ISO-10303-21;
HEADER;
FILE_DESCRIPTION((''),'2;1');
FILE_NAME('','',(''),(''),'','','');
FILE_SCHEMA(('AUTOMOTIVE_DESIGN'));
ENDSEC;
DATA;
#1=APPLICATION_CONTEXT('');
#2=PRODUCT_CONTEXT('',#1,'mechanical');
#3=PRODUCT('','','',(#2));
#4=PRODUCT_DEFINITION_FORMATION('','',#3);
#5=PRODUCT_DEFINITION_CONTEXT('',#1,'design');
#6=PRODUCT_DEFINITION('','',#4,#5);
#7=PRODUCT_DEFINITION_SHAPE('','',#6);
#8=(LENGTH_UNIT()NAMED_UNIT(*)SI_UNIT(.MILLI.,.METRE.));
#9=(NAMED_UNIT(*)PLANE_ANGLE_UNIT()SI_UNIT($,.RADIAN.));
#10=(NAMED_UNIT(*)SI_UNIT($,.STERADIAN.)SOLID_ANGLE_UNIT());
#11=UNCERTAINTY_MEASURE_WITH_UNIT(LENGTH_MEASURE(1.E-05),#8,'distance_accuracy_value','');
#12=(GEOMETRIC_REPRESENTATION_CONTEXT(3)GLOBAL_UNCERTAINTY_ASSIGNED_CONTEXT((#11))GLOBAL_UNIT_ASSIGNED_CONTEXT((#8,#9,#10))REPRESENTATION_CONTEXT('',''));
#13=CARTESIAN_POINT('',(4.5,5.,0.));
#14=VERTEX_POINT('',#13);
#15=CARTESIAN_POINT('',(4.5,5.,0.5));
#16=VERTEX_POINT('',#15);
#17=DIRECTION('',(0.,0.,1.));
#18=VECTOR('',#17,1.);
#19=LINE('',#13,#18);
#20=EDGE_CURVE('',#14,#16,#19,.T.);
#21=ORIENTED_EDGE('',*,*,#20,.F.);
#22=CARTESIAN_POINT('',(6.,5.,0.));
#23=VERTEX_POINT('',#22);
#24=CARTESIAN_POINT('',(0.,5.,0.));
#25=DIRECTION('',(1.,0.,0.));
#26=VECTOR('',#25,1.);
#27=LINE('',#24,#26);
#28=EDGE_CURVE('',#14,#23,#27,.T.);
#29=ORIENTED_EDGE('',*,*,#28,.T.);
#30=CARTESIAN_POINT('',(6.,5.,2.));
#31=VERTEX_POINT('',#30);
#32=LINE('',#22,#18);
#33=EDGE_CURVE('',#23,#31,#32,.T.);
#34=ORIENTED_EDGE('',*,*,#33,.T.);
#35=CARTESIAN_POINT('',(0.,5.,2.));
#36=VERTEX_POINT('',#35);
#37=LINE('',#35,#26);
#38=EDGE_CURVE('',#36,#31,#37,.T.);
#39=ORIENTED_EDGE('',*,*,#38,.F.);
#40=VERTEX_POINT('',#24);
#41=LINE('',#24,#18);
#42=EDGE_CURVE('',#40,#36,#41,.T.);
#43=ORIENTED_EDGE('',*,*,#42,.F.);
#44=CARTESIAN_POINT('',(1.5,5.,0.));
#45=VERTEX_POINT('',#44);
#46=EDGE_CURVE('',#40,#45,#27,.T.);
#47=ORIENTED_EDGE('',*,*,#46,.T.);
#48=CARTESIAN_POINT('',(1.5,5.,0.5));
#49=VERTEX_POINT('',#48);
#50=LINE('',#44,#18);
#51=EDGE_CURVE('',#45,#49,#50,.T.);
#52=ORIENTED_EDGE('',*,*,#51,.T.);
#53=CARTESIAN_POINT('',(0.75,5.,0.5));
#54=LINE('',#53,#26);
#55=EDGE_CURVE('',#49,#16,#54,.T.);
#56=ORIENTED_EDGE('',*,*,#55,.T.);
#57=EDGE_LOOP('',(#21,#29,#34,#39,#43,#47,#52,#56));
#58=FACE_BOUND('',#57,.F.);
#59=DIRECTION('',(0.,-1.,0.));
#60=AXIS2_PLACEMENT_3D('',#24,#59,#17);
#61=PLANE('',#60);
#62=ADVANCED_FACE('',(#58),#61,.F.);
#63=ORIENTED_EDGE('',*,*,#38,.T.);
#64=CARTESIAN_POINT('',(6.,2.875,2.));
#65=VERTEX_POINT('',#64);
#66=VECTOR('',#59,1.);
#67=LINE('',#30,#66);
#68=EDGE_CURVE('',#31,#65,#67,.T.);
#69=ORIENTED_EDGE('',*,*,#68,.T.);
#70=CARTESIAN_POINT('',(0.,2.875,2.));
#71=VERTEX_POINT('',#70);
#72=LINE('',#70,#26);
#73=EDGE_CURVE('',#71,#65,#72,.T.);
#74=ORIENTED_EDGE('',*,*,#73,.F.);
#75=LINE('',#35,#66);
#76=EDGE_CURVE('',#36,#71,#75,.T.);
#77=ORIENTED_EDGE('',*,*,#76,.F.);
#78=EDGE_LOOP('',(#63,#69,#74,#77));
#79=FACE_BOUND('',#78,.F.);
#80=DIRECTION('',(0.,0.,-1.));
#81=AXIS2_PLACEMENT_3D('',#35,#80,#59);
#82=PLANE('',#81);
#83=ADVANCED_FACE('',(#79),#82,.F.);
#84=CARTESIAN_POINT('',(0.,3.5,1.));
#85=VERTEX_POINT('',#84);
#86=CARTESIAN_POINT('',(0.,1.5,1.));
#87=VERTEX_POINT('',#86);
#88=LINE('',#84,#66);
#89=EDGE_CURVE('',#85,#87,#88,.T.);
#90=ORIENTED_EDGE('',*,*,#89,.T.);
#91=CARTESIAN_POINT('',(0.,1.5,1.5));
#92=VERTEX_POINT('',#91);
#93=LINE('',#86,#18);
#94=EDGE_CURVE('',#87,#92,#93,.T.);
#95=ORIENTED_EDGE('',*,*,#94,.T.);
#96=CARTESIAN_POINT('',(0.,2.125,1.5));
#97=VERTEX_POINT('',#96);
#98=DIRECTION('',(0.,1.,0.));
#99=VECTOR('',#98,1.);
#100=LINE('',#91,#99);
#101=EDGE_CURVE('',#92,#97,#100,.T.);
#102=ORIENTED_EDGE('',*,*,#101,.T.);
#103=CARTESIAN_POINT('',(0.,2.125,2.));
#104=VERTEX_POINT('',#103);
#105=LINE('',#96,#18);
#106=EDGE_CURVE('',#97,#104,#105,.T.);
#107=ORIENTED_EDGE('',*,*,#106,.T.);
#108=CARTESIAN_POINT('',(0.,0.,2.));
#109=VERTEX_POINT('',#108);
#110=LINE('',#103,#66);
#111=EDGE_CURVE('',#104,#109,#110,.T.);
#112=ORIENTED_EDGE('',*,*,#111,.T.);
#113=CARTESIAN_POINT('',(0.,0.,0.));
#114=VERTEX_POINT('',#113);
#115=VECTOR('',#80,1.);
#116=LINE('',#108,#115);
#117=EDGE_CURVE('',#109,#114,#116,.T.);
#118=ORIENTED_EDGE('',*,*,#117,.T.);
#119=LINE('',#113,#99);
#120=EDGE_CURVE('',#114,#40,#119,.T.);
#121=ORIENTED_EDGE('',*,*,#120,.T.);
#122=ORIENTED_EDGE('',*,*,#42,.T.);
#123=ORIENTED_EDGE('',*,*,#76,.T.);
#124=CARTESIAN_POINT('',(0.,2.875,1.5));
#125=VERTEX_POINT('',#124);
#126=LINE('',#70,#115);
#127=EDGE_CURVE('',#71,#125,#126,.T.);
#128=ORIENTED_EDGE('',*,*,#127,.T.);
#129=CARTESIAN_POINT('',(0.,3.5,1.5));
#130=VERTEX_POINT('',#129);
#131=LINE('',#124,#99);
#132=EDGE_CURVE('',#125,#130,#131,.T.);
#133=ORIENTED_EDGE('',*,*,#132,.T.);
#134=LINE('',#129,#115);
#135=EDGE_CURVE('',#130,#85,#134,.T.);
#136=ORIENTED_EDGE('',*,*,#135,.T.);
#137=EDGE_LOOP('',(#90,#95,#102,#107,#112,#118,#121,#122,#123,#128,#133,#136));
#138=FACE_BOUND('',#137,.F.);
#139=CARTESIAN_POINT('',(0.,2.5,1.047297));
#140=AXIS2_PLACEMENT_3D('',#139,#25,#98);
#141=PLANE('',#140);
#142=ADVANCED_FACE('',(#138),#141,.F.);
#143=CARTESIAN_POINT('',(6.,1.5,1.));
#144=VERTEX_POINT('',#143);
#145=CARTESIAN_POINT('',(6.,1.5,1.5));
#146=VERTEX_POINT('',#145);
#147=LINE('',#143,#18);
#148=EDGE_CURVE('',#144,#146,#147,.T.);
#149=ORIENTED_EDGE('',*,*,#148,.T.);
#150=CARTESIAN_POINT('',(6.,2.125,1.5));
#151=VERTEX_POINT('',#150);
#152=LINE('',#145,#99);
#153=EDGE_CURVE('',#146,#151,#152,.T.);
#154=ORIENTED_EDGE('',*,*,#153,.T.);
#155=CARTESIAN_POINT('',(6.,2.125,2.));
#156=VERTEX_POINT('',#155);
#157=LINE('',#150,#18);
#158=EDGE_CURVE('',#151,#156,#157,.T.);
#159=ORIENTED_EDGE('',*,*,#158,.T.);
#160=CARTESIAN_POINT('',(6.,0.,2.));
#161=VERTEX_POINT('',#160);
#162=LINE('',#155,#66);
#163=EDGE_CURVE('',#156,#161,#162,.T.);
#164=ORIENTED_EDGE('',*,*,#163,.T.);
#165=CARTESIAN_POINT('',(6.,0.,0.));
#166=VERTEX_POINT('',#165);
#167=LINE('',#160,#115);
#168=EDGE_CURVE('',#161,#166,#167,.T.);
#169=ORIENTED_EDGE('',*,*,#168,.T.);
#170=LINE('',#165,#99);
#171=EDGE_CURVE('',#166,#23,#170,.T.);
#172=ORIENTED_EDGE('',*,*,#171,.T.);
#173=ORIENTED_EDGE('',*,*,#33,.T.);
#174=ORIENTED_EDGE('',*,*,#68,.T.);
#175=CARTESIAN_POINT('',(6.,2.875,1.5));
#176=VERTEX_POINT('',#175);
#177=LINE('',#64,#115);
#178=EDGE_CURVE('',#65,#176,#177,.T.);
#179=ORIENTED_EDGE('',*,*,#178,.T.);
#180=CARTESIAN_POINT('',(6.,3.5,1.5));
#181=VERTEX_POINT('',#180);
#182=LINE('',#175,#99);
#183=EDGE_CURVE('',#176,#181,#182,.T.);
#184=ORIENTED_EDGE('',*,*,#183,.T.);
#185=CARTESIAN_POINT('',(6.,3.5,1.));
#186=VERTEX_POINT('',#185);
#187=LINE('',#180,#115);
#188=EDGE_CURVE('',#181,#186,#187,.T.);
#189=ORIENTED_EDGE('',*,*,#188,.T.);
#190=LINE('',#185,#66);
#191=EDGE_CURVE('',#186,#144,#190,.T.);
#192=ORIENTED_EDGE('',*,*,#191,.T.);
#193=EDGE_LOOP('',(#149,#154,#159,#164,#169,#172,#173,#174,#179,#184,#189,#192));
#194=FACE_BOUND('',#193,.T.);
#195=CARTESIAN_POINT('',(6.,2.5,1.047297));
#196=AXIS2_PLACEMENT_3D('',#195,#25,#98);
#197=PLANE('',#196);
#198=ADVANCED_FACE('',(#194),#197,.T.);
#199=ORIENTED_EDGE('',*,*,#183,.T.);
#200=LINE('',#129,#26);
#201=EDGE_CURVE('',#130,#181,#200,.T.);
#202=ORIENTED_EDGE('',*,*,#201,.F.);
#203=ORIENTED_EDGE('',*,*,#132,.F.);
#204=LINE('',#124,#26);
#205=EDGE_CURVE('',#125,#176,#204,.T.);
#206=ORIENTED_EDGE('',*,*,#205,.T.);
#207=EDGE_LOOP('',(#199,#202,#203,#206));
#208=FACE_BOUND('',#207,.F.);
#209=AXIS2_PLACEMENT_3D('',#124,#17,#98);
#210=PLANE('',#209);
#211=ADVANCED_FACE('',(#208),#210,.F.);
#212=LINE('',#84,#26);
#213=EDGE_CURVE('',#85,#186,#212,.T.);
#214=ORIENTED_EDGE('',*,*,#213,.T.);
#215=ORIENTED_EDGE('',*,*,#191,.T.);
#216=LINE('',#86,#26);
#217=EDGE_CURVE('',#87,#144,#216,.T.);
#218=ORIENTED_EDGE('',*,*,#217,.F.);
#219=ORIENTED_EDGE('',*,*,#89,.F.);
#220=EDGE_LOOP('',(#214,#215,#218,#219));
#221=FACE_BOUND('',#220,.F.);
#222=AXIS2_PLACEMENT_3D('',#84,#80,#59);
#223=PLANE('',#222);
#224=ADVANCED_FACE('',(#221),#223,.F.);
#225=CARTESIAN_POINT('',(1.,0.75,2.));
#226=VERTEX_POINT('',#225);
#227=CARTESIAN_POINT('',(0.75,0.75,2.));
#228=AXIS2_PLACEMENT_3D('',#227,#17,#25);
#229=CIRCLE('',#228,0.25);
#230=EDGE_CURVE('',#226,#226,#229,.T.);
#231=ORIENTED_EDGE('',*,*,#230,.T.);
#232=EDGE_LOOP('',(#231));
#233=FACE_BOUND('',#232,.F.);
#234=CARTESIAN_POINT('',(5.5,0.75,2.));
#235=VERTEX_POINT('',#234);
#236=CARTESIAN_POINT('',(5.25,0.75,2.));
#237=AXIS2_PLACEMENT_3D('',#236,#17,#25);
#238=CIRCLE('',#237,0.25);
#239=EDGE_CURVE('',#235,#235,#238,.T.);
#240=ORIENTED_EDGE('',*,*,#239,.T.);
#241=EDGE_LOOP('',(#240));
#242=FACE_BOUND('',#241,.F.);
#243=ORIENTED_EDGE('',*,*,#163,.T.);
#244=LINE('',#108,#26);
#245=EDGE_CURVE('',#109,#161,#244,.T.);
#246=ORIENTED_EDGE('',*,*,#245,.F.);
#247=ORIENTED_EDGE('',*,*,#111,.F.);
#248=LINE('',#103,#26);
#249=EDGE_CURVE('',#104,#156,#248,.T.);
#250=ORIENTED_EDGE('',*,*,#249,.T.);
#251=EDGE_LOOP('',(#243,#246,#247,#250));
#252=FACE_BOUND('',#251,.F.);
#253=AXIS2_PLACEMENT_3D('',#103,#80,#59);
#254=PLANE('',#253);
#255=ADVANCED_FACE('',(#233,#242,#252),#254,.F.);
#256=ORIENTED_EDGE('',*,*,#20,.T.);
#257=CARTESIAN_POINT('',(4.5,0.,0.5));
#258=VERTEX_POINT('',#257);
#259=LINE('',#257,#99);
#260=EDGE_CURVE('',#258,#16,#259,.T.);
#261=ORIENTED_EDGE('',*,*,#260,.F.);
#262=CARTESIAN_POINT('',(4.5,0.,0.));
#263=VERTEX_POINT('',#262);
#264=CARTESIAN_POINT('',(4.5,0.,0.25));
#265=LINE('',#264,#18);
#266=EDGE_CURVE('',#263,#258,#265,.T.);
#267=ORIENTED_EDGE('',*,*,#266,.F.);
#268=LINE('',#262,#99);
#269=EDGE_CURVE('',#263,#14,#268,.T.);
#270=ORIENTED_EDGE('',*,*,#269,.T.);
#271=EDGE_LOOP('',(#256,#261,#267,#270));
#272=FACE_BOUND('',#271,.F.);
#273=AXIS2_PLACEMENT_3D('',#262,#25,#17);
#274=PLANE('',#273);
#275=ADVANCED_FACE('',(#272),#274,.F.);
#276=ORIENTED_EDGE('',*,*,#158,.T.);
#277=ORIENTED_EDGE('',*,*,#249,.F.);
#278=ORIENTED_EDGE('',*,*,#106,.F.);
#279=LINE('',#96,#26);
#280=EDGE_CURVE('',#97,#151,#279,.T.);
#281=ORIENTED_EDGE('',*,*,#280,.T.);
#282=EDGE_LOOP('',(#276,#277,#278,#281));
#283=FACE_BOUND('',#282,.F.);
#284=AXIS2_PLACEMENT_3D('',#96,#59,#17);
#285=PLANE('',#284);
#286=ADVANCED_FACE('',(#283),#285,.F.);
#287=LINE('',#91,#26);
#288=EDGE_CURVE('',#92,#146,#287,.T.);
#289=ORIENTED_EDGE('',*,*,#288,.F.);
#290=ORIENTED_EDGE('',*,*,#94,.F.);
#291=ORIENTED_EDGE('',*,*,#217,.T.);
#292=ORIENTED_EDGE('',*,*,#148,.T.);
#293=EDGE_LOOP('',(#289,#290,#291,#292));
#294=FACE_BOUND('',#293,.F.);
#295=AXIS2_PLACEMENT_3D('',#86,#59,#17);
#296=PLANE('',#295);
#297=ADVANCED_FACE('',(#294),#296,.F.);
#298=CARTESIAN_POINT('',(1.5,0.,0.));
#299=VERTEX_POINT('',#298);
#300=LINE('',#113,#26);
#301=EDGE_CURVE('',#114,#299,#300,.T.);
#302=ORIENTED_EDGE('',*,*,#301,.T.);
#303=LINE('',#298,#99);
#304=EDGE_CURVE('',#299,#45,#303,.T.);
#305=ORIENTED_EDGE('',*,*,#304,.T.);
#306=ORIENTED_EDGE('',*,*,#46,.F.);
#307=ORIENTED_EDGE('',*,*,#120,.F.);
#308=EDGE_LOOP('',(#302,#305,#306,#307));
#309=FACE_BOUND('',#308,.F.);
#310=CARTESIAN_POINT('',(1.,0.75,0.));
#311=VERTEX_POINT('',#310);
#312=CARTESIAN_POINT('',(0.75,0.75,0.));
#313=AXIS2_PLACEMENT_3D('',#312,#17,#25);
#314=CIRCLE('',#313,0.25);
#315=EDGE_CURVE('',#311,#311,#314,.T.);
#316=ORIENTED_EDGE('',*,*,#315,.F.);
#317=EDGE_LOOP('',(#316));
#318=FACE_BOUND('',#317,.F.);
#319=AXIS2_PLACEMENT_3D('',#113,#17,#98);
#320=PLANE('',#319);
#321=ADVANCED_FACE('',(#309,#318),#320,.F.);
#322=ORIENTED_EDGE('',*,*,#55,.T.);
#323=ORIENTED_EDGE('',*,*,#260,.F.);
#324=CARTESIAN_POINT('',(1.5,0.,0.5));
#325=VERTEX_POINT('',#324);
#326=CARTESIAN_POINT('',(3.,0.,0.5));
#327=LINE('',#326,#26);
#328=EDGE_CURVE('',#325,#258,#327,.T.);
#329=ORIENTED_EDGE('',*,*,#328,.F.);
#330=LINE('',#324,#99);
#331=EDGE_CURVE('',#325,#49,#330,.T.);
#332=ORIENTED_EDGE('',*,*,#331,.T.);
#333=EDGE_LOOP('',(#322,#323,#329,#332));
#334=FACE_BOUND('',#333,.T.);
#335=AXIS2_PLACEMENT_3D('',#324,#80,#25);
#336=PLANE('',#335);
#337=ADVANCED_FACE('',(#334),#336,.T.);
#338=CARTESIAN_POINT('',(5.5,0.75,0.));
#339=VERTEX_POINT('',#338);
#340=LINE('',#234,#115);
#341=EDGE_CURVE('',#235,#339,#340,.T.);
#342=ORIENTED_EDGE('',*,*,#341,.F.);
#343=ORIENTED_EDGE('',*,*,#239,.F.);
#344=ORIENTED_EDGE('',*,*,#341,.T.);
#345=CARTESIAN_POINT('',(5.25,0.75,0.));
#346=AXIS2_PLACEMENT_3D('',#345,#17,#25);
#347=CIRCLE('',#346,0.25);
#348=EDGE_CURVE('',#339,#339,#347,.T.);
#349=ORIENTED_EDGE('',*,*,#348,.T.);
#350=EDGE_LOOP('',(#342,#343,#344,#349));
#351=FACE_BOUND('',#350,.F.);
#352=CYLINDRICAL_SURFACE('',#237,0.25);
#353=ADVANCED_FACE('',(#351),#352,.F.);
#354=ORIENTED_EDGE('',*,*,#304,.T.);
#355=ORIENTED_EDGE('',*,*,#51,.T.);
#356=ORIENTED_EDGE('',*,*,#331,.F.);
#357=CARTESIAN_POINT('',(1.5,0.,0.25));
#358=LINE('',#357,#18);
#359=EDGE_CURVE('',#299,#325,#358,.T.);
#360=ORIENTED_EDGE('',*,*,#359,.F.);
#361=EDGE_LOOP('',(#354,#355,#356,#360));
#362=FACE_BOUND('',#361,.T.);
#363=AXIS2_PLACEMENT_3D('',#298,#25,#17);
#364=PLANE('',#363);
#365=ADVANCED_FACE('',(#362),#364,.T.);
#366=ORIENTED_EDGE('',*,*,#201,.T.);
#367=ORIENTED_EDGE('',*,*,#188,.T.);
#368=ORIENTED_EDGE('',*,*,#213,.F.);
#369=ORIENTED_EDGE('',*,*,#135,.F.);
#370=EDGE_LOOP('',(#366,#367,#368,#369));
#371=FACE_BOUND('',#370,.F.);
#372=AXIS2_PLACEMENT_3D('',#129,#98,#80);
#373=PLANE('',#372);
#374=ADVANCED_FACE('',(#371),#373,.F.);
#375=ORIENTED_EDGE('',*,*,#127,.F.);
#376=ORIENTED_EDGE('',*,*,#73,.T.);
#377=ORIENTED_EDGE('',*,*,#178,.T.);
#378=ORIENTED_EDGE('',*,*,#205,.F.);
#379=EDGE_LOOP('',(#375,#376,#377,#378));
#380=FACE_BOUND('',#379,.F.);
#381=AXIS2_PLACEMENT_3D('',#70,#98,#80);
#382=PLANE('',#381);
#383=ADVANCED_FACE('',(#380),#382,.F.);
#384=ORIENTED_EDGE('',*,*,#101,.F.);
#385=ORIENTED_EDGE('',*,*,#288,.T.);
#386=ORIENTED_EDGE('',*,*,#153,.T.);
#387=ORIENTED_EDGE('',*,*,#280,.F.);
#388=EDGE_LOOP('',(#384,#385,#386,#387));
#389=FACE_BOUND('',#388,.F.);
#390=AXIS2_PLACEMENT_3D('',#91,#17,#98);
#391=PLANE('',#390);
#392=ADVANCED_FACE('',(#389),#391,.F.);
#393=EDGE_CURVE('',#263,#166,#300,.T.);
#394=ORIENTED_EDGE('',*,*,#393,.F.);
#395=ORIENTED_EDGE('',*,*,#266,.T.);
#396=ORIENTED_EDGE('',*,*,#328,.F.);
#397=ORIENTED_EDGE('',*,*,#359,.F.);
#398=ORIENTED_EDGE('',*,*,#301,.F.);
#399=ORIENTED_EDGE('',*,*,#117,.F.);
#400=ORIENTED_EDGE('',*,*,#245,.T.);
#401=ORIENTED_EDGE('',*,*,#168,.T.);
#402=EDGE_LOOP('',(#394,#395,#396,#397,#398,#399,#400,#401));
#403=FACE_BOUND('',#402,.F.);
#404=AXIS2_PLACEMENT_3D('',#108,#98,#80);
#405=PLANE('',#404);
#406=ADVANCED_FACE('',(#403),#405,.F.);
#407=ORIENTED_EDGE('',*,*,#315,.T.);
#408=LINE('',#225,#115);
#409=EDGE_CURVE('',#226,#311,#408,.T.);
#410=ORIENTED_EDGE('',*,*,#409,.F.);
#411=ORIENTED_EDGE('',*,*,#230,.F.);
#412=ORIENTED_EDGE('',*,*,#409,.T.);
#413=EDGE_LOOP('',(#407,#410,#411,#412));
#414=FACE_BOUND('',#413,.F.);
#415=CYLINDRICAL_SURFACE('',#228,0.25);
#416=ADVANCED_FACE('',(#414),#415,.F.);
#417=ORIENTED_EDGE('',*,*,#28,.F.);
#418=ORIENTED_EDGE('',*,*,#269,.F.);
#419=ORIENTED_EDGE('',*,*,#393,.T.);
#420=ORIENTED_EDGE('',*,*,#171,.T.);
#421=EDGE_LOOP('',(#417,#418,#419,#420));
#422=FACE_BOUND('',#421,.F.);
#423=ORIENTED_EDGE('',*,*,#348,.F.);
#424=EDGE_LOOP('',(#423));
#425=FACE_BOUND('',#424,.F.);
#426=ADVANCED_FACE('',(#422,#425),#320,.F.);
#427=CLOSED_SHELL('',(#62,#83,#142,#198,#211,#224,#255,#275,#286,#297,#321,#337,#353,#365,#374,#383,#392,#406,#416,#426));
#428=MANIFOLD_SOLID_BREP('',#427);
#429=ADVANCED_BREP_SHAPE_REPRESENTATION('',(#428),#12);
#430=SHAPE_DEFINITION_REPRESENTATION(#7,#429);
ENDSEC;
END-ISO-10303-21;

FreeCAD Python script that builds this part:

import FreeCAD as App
import Part
import Sketcher
Q = App.Units.Quantity

doc = App.newDocument("Part")
body = doc.addObject("PartDesign::Body", "Body")

# Sketch on YZ plane
sketch1 = body.newObject("Sketcher::SketchObject", "Sketch")
sketch1.AttachmentSupport = (doc.getObject("YZ_Plane"), [""])
sketch1.MapMode = "FlatFace"
sketch1.addGeometry([
    Part.LineSegment(App.Vector(0, 2, 0), App.Vector(0, 0, 0)),  # 0
    Part.LineSegment(App.Vector(0, 0, 0), App.Vector(5, 0, 0)),  # 1
    Part.LineSegment(App.Vector(5, 0, 0), App.Vector(5, 2, 0)),  # 2
    Part.LineSegment(App.Vector(5, 2, 0), App.Vector(2.9, 2, 0)),  # 3
    Part.LineSegment(App.Vector(2.9, 2, 0), App.Vector(2.9, 1.5, 0)),  # 4
    Part.LineSegment(App.Vector(2.9, 1.5, 0), App.Vector(3.5, 1.5, 0)),  # 5
    Part.LineSegment(App.Vector(3.5, 1.5, 0), App.Vector(3.5, 1, 0)),  # 6
    Part.LineSegment(App.Vector(3.5, 1, 0), App.Vector(1.5, 1, 0)),  # 7
    Part.LineSegment(App.Vector(1.5, 1, 0), App.Vector(1.5, 1.5, 0)),  # 8
    Part.LineSegment(App.Vector(1.5, 1.5, 0), App.Vector(2.1, 1.5, 0)),  # 9
    Part.LineSegment(App.Vector(2.1, 1.5, 0), App.Vector(2.1, 2, 0)),  # 10
    Part.LineSegment(App.Vector(2.1, 2, 0), App.Vector(0, 2, 0)),  # 11
], False)
sketch1.addConstraint([
    Sketcher.Constraint("Coincident", 0, 2, 1, 1),
    Sketcher.Constraint("Coincident", 1, 2, 2, 1),
    Sketcher.Constraint("Coincident", 2, 2, 3, 1),
    Sketcher.Constraint("Coincident", 3, 2, 4, 1),
    Sketcher.Constraint("Coincident", 4, 2, 5, 1),
    Sketcher.Constraint("Coincident", 5, 2, 6, 1),
    Sketcher.Constraint("Coincident", 6, 2, 7, 1),
    Sketcher.Constraint("Coincident", 7, 2, 8, 1),
    Sketcher.Constraint("Coincident", 8, 2, 9, 1),
    Sketcher.Constraint("Coincident", 9, 2, 10, 1),
    Sketcher.Constraint("Coincident", 10, 2, 11, 1),
    Sketcher.Constraint("Coincident", 11, 2, 0, 1),
    Sketcher.Constraint("Vertical", 0),
    Sketcher.Constraint("Horizontal", 1),
    Sketcher.Constraint("Vertical", 2),
    Sketcher.Constraint("Horizontal", 3),
    Sketcher.Constraint("Vertical", 4),
    Sketcher.Constraint("Horizontal", 5),
    Sketcher.Constraint("Vertical", 6),
    Sketcher.Constraint("Horizontal", 7),
    Sketcher.Constraint("Vertical", 8),
    Sketcher.Constraint("Horizontal", 9),
    Sketcher.Constraint("Vertical", 10),
    Sketcher.Constraint("Horizontal", 11),
    Sketcher.Constraint("Coincident", 0, 2, -1, 1),
    Sketcher.Constraint("Horizontal", 5, 2, 8, 2),
    Sketcher.Constraint("Horizontal", 3, 2, 10, 2),
    Sketcher.Constraint("Equal", 5, 9),
    Sketcher.Constraint("Equal", 3, 11),
    Sketcher.Constraint("Equal", 7, 0),
    Sketcher.Constraint("Equal", 4, 6),
    Sketcher.Constraint("DistanceX", 1, 1, 1, 2, Q("5 mm")),
    Sketcher.Constraint("DistanceX", 7, 2, 7, 1, Q("2 mm")),
    Sketcher.Constraint("DistanceY", 4, 2, 4, 1, Q("0.5 mm")),
    Sketcher.Constraint("DistanceX", 3, 2, 3, 1, Q("2.125 mm")),
])
pad1 = body.newObject("PartDesign::Pad", "Pad")
pad1.Profile = sketch1
pad1.Length = 6

# Sketch on XY plane
sketch2 = body.newObject("Sketcher::SketchObject", "Sketch001")
sketch2.AttachmentSupport = (doc.getObject("XY_Plane"), [""])
sketch2.MapMode = "FlatFace"
sketch2.AttachmentOffset = App.Placement(App.Vector(0, 0, 2), App.Rotation())
sketch2.addGeometry([
    Part.Circle(App.Vector(0.75, 0.75, 0), App.Vector(0, 0, 1), 0.25),
    Part.Circle(App.Vector(5.25, 0.75, 0), App.Vector(0, 0, 1), 0.25),
], False)
sketch2.addConstraint([
    Sketcher.Constraint("Equal", 0, 1),
    Sketcher.Constraint("Horizontal", 0, 3, 1, 3),
    Sketcher.Constraint("Diameter", 0, Q("0.5 mm")),
    Sketcher.Constraint("DistanceX", 0, 3, 1, 3, Q("4.5 mm")),
    Sketcher.Constraint("DistanceX", -1, 1, 0, 3, Q("0.75 mm")),
    Sketcher.Constraint("DistanceY", -1, 1, 0, 3, Q("0.75 mm")),
])
pocket1 = body.newObject("PartDesign::Pocket", "Pocket")
pocket1.Profile = sketch2
pocket1.Length = 25

# Sketch on XZ plane
sketch3 = body.newObject("Sketcher::SketchObject", "Sketch002")
sketch3.AttachmentSupport = (doc.getObject("XZ_Plane"), [""])
sketch3.MapMode = "FlatFace"
sketch3.addGeometry([
    Part.LineSegment(App.Vector(1.5, 0.5, 0), App.Vector(1.5, 0, 0)),
    Part.LineSegment(App.Vector(1.5, 0, 0), App.Vector(4.5, 0, 0)),
    Part.LineSegment(App.Vector(4.5, 0, 0), App.Vector(4.5, 0.5, 0)),
    Part.LineSegment(App.Vector(4.5, 0.5, 0), App.Vector(1.5, 0.5, 0)),
], False)
sketch3.addConstraint([
    Sketcher.Constraint("Coincident", 0, 2, 1, 1),
    Sketcher.Constraint("Coincident", 1, 2, 2, 1),
    Sketcher.Constraint("Coincident", 2, 2, 3, 1),
    Sketcher.Constraint("Coincident", 3, 2, 0, 1),
    Sketcher.Constraint("Vertical", 0),
    Sketcher.Constraint("Horizontal", 1),
    Sketcher.Constraint("Vertical", 2),
    Sketcher.Constraint("Horizontal", 3),
    Sketcher.Constraint("PointOnObject", 0, 2, -1),
    Sketcher.Constraint("DistanceX", 1, 1, 1, 2, Q("3 mm")),
    Sketcher.Constraint("DistanceY", 0, 2, 0, 1, Q("0.5 mm")),
    Sketcher.Constraint("DistanceX", -1, 1, 0, 2, Q("1.5 mm")),
])
pocket2 = body.newObject("PartDesign::Pocket", "Pocket001")
pocket2.Profile = sketch3
pocket2.Length = 25

doc.recompute()
